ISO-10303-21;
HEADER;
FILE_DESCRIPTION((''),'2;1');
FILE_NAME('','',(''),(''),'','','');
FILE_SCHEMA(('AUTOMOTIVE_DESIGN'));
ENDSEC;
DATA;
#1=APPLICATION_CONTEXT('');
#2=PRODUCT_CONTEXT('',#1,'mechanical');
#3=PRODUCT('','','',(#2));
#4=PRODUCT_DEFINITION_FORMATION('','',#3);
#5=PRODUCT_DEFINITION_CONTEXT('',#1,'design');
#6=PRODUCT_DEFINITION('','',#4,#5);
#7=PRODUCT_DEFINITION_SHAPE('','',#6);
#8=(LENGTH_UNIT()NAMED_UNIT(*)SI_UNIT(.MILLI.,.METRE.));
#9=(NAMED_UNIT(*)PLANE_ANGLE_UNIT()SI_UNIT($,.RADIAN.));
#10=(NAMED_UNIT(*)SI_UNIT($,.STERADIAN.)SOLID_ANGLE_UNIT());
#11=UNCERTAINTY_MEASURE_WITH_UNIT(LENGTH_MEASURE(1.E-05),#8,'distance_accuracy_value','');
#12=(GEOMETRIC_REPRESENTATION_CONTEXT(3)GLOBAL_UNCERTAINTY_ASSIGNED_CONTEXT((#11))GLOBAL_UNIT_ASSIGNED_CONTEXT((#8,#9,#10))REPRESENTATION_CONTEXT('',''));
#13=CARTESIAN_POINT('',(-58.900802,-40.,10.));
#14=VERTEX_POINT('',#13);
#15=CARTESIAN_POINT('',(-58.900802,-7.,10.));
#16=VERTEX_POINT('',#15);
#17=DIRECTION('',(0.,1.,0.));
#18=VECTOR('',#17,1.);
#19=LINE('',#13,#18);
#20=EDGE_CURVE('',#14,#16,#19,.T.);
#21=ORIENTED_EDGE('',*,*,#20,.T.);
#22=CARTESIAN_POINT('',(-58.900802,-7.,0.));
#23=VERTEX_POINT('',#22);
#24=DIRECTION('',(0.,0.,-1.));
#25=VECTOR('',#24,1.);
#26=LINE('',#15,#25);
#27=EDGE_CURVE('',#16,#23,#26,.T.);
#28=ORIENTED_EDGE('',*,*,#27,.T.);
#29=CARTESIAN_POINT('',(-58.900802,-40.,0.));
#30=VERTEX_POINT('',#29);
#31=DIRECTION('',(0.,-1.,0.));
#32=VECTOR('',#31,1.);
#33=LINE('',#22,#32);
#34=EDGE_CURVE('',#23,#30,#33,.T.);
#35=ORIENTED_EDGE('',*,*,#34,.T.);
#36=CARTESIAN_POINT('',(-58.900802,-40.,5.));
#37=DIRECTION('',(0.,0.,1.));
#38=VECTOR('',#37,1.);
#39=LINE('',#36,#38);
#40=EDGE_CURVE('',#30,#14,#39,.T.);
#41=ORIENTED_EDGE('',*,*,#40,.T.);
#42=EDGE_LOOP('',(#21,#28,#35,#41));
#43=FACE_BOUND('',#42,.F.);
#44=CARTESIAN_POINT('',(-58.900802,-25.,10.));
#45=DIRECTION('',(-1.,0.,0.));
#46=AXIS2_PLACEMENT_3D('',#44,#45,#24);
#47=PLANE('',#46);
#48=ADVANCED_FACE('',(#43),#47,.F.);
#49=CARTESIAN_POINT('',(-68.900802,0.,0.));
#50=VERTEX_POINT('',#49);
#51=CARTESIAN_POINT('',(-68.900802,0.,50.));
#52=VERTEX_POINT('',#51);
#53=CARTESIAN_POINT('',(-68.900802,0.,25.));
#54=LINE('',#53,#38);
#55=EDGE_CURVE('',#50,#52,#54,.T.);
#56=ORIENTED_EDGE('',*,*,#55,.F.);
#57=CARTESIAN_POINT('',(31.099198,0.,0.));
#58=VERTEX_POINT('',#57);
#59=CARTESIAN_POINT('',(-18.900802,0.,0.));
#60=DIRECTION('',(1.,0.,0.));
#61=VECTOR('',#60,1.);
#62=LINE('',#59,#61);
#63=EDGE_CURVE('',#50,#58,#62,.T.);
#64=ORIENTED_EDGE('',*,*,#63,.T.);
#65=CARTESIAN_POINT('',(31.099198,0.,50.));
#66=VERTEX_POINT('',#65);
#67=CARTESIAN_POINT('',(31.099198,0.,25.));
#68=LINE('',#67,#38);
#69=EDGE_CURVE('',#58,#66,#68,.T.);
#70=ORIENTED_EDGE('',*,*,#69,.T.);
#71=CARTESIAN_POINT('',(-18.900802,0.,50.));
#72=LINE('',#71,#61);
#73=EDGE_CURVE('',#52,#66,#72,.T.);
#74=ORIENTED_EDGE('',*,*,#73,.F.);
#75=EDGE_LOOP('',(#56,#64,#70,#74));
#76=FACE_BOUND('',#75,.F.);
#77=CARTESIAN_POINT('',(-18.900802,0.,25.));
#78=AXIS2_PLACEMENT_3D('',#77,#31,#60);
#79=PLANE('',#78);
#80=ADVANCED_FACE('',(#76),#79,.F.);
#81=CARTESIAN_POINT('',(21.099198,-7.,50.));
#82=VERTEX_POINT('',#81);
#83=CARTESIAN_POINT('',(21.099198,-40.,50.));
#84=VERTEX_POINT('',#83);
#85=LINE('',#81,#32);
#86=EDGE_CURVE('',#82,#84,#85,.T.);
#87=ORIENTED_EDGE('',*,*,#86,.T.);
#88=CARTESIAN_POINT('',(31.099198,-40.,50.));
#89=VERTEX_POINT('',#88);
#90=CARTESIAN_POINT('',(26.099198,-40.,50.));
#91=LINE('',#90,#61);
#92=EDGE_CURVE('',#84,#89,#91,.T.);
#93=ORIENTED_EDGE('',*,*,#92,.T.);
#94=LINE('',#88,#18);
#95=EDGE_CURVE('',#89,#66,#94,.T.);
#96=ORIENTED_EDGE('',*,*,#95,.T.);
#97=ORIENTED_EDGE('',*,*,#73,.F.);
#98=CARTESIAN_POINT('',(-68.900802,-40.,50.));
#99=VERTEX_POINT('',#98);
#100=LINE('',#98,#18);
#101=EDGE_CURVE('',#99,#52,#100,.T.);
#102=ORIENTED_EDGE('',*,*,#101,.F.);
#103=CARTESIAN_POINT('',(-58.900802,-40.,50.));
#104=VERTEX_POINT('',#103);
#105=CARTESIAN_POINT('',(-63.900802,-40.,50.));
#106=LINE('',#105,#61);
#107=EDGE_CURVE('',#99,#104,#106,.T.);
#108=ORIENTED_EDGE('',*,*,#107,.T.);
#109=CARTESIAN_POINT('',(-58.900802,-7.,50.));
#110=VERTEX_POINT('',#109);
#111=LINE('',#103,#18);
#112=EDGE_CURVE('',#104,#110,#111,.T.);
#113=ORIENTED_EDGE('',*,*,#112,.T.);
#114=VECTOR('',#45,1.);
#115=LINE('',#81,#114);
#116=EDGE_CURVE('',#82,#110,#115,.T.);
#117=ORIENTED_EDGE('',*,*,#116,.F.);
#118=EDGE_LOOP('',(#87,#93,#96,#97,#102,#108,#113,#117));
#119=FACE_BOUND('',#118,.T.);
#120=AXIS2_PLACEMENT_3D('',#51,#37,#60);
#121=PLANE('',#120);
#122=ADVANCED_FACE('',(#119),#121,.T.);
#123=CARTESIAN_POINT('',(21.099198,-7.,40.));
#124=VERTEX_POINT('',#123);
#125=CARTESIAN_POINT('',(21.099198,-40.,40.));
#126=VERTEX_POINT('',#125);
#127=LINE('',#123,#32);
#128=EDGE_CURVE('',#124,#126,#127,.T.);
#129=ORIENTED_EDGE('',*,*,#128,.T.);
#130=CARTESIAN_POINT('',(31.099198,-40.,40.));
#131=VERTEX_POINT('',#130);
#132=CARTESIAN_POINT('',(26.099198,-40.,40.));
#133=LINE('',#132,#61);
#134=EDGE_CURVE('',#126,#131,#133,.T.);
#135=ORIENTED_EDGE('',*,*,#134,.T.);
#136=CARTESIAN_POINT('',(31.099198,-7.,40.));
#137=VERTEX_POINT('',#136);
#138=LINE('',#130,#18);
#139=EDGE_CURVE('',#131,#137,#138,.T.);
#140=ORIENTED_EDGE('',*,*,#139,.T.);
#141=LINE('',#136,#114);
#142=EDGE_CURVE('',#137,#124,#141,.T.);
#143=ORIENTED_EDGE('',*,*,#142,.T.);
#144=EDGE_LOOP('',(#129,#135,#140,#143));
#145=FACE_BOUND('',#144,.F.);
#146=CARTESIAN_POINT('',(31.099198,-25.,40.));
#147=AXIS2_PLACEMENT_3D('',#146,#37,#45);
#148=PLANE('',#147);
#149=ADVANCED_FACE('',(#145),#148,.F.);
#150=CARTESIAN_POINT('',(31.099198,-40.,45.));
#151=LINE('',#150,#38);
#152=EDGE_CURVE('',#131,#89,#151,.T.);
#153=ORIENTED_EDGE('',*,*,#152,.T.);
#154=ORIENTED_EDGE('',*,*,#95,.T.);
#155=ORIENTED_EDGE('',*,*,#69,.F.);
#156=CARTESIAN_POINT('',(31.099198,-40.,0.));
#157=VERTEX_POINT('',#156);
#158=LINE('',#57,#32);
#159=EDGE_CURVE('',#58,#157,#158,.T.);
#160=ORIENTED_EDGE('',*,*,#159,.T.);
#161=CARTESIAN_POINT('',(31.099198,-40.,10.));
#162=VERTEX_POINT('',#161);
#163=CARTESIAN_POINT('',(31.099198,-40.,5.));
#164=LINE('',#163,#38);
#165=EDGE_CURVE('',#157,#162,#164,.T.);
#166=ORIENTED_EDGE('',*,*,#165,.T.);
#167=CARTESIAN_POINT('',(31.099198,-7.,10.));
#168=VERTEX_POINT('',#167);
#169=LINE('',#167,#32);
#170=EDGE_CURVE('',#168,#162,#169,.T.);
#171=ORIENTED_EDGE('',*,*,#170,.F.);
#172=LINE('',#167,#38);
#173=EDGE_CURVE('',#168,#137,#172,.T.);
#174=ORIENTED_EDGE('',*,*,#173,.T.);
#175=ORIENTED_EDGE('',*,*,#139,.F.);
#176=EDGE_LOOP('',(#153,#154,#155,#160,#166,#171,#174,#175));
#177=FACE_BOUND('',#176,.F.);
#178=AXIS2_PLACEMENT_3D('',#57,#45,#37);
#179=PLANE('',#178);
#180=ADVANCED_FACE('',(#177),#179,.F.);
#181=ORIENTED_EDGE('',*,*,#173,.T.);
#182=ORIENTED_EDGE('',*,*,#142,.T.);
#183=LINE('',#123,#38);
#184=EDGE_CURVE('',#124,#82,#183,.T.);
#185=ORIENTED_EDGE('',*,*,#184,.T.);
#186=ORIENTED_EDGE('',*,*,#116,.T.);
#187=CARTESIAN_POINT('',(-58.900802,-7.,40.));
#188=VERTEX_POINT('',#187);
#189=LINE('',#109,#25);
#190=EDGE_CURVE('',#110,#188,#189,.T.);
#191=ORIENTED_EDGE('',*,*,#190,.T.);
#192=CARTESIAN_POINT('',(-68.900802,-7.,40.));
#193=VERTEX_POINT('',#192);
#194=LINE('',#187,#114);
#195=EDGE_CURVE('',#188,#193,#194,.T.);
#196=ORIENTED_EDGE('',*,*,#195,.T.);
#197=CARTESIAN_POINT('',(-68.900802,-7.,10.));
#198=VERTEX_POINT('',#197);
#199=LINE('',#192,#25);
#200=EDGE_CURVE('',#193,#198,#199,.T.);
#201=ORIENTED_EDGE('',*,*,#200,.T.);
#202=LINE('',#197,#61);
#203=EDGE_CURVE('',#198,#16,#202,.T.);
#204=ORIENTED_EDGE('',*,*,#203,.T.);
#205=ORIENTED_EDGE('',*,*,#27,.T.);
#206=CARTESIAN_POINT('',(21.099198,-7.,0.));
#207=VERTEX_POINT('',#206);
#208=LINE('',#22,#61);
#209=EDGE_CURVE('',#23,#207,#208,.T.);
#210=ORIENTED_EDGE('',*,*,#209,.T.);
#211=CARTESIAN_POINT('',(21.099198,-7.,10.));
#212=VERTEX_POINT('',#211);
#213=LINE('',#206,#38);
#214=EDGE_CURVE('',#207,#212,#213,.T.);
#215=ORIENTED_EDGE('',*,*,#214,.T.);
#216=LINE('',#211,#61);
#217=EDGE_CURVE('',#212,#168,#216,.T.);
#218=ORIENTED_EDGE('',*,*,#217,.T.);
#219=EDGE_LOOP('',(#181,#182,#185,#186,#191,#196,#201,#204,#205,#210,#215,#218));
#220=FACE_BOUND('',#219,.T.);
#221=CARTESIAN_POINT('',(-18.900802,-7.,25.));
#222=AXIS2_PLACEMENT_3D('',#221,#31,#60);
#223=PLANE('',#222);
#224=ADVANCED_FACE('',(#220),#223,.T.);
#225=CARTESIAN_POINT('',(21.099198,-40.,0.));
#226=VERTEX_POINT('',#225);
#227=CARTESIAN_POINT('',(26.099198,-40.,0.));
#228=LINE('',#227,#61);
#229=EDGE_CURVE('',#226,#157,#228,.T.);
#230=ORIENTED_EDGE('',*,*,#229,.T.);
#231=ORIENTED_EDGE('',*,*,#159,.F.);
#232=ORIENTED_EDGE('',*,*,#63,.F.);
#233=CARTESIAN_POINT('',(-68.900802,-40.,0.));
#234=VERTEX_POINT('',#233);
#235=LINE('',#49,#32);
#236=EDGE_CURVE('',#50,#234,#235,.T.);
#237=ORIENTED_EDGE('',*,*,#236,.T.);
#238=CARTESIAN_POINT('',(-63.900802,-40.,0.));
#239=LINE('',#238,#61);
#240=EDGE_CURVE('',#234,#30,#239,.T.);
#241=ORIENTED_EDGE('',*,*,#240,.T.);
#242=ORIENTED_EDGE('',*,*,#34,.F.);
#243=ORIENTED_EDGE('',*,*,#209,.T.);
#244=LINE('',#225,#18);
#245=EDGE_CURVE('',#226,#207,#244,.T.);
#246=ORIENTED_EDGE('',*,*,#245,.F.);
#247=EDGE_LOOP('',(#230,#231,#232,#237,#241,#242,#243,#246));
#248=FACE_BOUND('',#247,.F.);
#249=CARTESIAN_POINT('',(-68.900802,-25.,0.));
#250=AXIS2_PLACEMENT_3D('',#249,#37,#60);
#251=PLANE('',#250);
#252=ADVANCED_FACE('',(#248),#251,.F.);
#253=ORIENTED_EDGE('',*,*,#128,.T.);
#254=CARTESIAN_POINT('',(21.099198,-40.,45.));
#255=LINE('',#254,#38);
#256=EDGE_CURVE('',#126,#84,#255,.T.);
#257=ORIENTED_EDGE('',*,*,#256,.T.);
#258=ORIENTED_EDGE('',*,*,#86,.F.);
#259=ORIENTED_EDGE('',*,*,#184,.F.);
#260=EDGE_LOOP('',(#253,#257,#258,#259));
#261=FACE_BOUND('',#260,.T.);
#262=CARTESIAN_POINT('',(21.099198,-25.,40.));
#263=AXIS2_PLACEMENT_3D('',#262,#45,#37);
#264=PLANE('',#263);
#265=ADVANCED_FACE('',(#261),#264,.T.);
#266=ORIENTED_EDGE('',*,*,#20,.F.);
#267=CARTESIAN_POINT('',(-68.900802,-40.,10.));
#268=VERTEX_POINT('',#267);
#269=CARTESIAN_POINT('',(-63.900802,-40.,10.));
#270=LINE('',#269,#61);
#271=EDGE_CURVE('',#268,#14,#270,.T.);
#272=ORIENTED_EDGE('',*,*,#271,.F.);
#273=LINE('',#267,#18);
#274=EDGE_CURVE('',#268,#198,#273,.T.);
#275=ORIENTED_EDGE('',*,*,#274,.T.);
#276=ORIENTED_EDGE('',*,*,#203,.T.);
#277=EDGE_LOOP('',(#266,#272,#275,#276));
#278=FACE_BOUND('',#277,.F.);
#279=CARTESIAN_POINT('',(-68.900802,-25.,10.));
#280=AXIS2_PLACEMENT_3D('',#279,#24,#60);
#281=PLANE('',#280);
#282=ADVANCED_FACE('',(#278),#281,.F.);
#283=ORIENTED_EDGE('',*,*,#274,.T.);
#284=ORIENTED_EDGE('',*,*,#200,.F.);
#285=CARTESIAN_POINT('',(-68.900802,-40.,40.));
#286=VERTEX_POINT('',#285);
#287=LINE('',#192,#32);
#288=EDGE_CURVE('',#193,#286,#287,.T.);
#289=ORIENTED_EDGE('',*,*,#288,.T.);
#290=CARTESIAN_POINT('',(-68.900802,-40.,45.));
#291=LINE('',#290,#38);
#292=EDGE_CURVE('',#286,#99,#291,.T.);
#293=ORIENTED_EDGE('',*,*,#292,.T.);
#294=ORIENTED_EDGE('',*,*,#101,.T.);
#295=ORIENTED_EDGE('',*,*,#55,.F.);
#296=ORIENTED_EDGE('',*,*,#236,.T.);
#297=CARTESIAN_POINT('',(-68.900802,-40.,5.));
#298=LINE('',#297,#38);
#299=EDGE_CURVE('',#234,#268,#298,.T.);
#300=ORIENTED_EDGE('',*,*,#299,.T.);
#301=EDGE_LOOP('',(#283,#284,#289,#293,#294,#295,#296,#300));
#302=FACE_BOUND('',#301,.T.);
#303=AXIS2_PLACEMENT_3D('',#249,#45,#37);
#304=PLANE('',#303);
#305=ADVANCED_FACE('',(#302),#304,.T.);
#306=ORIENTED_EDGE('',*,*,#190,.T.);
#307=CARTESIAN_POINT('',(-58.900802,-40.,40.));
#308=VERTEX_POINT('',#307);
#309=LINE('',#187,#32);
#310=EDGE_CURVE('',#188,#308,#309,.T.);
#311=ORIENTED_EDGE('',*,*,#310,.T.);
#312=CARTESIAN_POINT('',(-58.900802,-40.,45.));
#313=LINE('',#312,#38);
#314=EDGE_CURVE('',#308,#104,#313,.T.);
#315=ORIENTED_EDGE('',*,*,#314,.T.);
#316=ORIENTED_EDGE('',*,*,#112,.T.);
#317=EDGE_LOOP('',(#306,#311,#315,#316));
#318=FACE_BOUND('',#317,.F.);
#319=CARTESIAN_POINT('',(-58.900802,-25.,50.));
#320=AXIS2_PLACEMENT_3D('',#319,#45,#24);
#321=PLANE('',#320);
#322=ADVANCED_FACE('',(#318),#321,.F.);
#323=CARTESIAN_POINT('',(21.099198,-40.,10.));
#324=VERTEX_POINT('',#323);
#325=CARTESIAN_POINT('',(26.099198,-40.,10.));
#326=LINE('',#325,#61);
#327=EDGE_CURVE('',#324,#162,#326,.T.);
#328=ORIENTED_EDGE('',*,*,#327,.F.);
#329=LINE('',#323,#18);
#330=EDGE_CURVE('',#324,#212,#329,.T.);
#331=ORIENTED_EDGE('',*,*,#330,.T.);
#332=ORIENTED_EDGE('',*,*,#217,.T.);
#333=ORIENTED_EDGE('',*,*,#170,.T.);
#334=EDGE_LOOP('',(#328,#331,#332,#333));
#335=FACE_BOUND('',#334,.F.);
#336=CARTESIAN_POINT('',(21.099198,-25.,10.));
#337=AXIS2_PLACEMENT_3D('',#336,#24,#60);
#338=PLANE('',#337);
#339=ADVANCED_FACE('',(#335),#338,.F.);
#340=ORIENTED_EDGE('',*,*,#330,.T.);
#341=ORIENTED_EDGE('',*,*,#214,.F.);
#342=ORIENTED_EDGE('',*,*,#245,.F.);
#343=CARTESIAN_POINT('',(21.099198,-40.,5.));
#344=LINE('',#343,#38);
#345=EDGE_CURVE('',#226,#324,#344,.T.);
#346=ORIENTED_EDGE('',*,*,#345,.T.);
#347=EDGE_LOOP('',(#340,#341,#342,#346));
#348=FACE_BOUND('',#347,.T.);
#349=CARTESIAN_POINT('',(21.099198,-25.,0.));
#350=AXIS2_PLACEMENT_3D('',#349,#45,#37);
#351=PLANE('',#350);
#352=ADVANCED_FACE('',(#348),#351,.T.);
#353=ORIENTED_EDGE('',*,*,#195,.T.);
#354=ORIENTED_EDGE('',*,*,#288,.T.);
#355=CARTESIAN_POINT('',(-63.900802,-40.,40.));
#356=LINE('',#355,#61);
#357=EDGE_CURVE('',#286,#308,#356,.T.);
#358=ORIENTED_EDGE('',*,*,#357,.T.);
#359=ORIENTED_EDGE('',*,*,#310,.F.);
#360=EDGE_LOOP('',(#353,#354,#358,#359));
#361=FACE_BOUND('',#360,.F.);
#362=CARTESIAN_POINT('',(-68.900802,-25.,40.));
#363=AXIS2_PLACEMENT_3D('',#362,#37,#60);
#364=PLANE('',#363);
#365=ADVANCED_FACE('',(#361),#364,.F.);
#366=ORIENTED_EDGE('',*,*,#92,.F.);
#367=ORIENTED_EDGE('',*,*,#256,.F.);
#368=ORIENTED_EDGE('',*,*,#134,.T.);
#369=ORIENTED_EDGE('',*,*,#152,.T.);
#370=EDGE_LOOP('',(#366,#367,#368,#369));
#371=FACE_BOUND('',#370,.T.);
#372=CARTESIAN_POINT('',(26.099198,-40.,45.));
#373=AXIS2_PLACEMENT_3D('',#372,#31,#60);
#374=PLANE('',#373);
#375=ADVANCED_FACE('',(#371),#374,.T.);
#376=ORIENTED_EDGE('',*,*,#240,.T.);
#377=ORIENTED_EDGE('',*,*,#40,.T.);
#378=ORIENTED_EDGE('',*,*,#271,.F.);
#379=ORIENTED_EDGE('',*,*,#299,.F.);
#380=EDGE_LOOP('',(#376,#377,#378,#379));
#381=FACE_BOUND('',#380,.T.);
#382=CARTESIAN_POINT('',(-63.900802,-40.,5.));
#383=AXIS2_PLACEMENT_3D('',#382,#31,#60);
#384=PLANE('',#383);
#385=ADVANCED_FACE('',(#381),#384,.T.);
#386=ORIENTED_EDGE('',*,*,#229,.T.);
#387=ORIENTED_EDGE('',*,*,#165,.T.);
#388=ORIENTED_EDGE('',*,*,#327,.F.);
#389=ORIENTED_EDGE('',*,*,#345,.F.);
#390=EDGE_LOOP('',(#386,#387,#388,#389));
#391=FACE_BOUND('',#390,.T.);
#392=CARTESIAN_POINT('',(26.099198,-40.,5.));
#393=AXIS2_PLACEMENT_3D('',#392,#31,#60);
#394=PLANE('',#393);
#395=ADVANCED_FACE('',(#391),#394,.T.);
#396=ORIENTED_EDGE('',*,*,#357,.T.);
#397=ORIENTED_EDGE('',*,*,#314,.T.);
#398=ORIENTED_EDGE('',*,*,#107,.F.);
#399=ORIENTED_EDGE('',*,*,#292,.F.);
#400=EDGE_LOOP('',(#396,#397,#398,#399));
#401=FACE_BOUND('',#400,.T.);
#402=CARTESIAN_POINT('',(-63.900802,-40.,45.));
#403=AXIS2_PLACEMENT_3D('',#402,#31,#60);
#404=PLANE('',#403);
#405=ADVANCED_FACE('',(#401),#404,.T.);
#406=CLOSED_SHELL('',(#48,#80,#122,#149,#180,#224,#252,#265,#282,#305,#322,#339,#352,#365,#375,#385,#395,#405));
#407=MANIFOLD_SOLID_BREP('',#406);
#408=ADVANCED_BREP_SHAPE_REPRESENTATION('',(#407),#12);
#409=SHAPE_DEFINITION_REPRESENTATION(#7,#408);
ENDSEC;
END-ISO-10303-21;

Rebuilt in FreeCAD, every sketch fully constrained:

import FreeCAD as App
import Part
import Sketcher
from FreeCAD import Vector
Q = App.Units.Quantity


def add_polygon(sketch, points):
    """Adds a closed chain of lines whose ends are joined by coincident constraints."""
    first, n = sketch.GeometryCount, len(points)
    for a, b in zip(points, points[1:] + points[:1]):
        sketch.addGeometry(Part.LineSegment(App.Vector(*a, 0), App.Vector(*b, 0)), False)
    for i in range(n):
        sketch.addConstraint(Sketcher.Constraint("Coincident", first + i, 2, first + (i + 1) % n, 1))

doc = App.newDocument("Part")
params = doc.addObject("Spreadsheet::Sheet", "Params")
for row, (alias, value) in enumerate([
    ("sketch1_width", "100 mm"),
    ("sketch1_height", "50 mm"),
    ("pad1_length", "25 mm"),
    ("sketch2_width", "10 mm"),
    ("pad2_length", "15 mm"),
    ("sketch3_width", "80 mm"),
    ("sketch3_width2", "10 mm"),
    ("sketch3_height", "30 mm"),
    ("pocket1_length", "18 mm"),
], start=1):
    params.set(f"A{row}", alias)
    params.set(f"B{row}", "=" + value)
    params.setAlias(f"B{row}", alias)

body = doc.addObject("PartDesign::Body", "Body")

sketch1 = body.newObject("Sketcher::SketchObject", "Sketch")
sketch1.AttachmentSupport = (doc.getObject("XZ_Plane"), [""])
sketch1.MapMode = "FlatFace"
add_polygon(sketch1, [(-69, 50), (-69, 0), (31, 0), (31, 50)])
sketch1.addConstraint([
    Sketcher.Constraint("Vertical", 0),
    Sketcher.Constraint("Horizontal", 1),
    Sketcher.Constraint("Vertical", 2),
    Sketcher.Constraint("Horizontal", 3),
    Sketcher.Constraint("PointOnObject", 0, 2, -1),
    Sketcher.Constraint("DistanceX", 1, 1, 1, 2, Q("100 mm")),
    Sketcher.Constraint("DistanceY", 0, 2, 0, 1, Q("50 mm")),
    Sketcher.Constraint("DistanceX", 0, 2, -1, 1, Q("68.900802 mm")),
])
sketch1.setExpression("Constraints[9]", "Params.sketch1_width")
sketch1.setExpression("Constraints[10]", "Params.sketch1_height")
pad1 = body.newObject("PartDesign::Pad", "Pad")
pad1.Profile = sketch1
pad1.setExpression("Length", "Params.pad1_length")

sketch2 = body.newObject("Sketcher::SketchObject", "Sketch001")
sketch2.AttachmentSupport = (doc.getObject("XZ_Plane"), [""])
sketch2.MapMode = "FlatFace"
sketch2.AttachmentOffset = App.Placement(Vector(0, 0, 25), App.Rotation())
add_polygon(sketch2, [(-69, 10), (-69, 0), (-59, 0), (-59, 10)])
add_polygon(sketch2, [(-69, 50), (-69, 40), (-59, 40), (-59, 50)])
add_polygon(sketch2, [(21, 50), (21, 40), (31, 40), (31, 50)])
add_polygon(sketch2, [(21, 10), (21, 0), (31, 0), (31, 10)])
sketch2.addConstraint([
    Sketcher.Constraint("Vertical", 0),
    Sketcher.Constraint("Horizontal", 1),
    Sketcher.Constraint("Vertical", 2),
    Sketcher.Constraint("Horizontal", 3),
    Sketcher.Constraint("Vertical", 4),
    Sketcher.Constraint("Horizontal", 5),
    Sketcher.Constraint("Vertical", 6),
    Sketcher.Constraint("Horizontal", 7),
    Sketcher.Constraint("Vertical", 8),
    Sketcher.Constraint("Horizontal", 9),
    Sketcher.Constraint("Vertical", 10),
    Sketcher.Constraint("Horizontal", 11),
    Sketcher.Constraint("Vertical", 12),
    Sketcher.Constraint("Horizontal", 13),
    Sketcher.Constraint("Vertical", 14),
    Sketcher.Constraint("Horizontal", 15),
    Sketcher.Constraint("PointOnObject", 0, 2, -1),
    Sketcher.Constraint("PointOnObject", 12, 2, -1),
    Sketcher.Constraint("Horizontal", 5, 2, 8, 2),
    Sketcher.Constraint("Horizontal", 7, 2, 10, 2),
    Sketcher.Constraint("Horizontal", 3, 2, 14, 2),
    Sketcher.Constraint("Vertical", 3, 2, 4, 2),
    Sketcher.Constraint("Vertical", 2, 2, 5, 2),
    Sketcher.Constraint("Vertical", 11, 2, 12, 2),
    Sketcher.Constraint("Vertical", 10, 2, 13, 2),
    Sketcher.Constraint("Equal", 7, 9),
    Sketcher.Constraint("Equal", 15, 0),
    Sketcher.Constraint("Equal", 2, 4),
    Sketcher.Constraint("DistanceX", 1, 1, 1, 2, Q("10 mm")),
    Sketcher.Constraint("DistanceY", -1, 1, 4, 2, Q("40 mm")),
    Sketcher.Constraint("DistanceX", 5, 2, 8, 2, Q("80 mm")),
    Sketcher.Constraint("DistanceX", 0, 2, -1, 1, Q("68.900802 mm")),
])
sketch2.setExpression("Constraints[44]", "Params.sketch2_width")
pad2 = body.newObject("PartDesign::Pad", "Pad001")
pad2.Profile = sketch2
pad2.setExpression("Length", "Params.pad2_length")

sketch3 = body.newObject("Sketcher::SketchObject", "Sketch002")
sketch3.AttachmentSupport = (doc.getObject("XZ_Plane"), [""])
sketch3.MapMode = "FlatFace"
sketch3.AttachmentOffset = App.Placement(Vector(0, 0, 25), App.Rotation())
add_polygon(sketch3, [(21, 40), (21, 50), (-59, 50), (-59, 40), (-69, 40), (-69, 10), (-59, 10), (-59, 0), (21, 0), (21, 10), (31, 10), (31, 40)])
sketch3.addConstraint([
    Sketcher.Constraint("Vertical", 0),
    Sketcher.Constraint("Horizontal", 1),
    Sketcher.Constraint("Vertical", 2),
    Sketcher.Constraint("Horizontal", 3),
    Sketcher.Constraint("Vertical", 4),
    Sketcher.Constraint("Horizontal", 5),
    Sketcher.Constraint("Vertical", 6),
    Sketcher.Constraint("Horizontal", 7),
    Sketcher.Constraint("Vertical", 8),
    Sketcher.Constraint("Horizontal", 9),
    Sketcher.Constraint("Vertical", 10),
    Sketcher.Constraint("Horizontal", 11),
    Sketcher.Constraint("PointOnObject", 6, 2, -1),
    Sketcher.Constraint("Horizontal", 5, 2, 8, 2),
    Sketcher.Constraint("Horizontal", 3, 2, 10, 2),
    Sketcher.Constraint("Vertical", 2, 2, 5, 2),
    Sketcher.Constraint("Vertical", 0, 2, 7, 2),
    Sketcher.Constraint("Equal", 5, 9),
    Sketcher.Constraint("Equal", 11, 0),
    Sketcher.Constraint("Equal", 2, 6),
    Sketcher.Constraint("DistanceX", 1, 2, 1, 1, Q("80 mm")),
    Sketcher.Constraint("DistanceX", 3, 2, 3, 1, Q("10 mm")),
    Sketcher.Constraint("DistanceY", 4, 2, 4, 1, Q("30 mm")),
    Sketcher.Constraint("DistanceX", -1, 1, 0, 2, Q("21.099198 mm")),
])
sketch3.setExpression("Constraints[32]", "Params.sketch3_width")
sketch3.setExpression("Constraints[33]", "Params.sketch3_width2")
sketch3.setExpression("Constraints[34]", "Params.sketch3_height")
pocket1 = body.newObject("PartDesign::Pocket", "Pocket")
pocket1.Profile = sketch3
pocket1.setExpression("Length", "Params.pocket1_length")

doc.recompute()
